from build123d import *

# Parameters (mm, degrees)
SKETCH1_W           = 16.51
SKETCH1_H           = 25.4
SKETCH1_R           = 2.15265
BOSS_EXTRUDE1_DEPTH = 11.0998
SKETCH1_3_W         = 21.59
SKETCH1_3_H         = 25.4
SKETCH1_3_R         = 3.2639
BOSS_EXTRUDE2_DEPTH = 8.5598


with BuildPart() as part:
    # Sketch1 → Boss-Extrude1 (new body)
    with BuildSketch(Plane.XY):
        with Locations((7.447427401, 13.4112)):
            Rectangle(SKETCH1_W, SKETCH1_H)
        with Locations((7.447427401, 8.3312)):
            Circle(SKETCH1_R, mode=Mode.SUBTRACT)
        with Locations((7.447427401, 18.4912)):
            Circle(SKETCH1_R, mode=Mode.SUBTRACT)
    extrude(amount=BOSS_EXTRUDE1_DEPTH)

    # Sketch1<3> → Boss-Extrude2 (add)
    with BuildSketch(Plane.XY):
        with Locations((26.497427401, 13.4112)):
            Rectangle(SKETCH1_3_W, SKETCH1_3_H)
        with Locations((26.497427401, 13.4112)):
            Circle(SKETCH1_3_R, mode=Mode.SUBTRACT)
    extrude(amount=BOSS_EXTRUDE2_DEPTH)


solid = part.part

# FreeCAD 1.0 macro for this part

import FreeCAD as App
import Part
import Sketcher
from FreeCAD import Vector
Q = App.Units.Quantity

doc = App.newDocument("Part")
body = doc.addObject("PartDesign::Body", "Body")

sketch1 = doc.addObject("Sketcher::SketchObject", "Sketch")
body.addObject(sketch1)
sketch1.AttachmentSupport = (doc.XY_Plane, [""])
sketch1.MapMode = "FlatFace"
sketch1.addGeometry(Part.LineSegment(Vector(-0.8, 26.1, 0), Vector(-0.8, 0.7, 0)), False)
sketch1.addGeometry(Part.LineSegment(Vector(-0.8, 0.7, 0), Vector(15.7, 0.7, 0)), False)
sketch1.addGeometry(Part.LineSegment(Vector(15.7, 0.7, 0), Vector(15.7, 26.1, 0)), False)
sketch1.addGeometry(Part.LineSegment(Vector(15.7, 26.1, 0), Vector(-0.8, 26.1, 0)), False)
sketch1.addGeometry(Part.Circle(Vector(7.4, 8.3, 0), Vector(0, 0, 1), 2.2), False)
sketch1.addGeometry(Part.Circle(Vector(7.4, 18.5, 0), Vector(0, 0, 1), 2.2), False)
sketch1.addConstraint(Sketcher.Constraint("Coincident", 0, 2, 1, 1))
sketch1.addConstraint(Sketcher.Constraint("Coincident", 1, 2, 2, 1))
sketch1.addConstraint(Sketcher.Constraint("Coincident", 2, 2, 3, 1))
sketch1.addConstraint(Sketcher.Constraint("Coincident", 3, 2, 0, 1))
sketch1.addConstraint(Sketcher.Constraint("Vertical", 0))
sketch1.addConstraint(Sketcher.Constraint("Horizontal", 1))
sketch1.addConstraint(Sketcher.Constraint("Vertical", 2))
sketch1.addConstraint(Sketcher.Constraint("Horizontal", 3))
sketch1.addConstraint(Sketcher.Constraint("Equal", 4, 5))
sketch1.addConstraint(Sketcher.Constraint("Vertical", 4, 3, 5, 3))
sketch1.addConstraint(Sketcher.Constraint("DistanceY", 0, 2, 0, 1, Q("1 in")))
sketch1.addConstraint(Sketcher.Constraint("Diameter", 4, Q("0.1695 in")))
sketch1.addConstraint(Sketcher.Constraint("DistanceX", 1, 1, 1, 2, Q("0.65 in")))
sketch1.addConstraint(Sketcher.Constraint("DistanceY", 4, 3, 5, 3, Q("0.4 in")))
sketch1.addConstraint(Sketcher.Constraint("DistanceY", 0, 2, 4, 3, Q("0.3 in")))
sketch1.addConstraint(Sketcher.Constraint("DistanceY", -1, 1, 4, 3, Q("0.328 in")))
sketch1.addConstraint(Sketcher.Constraint("DistanceX", 0, 2, 4, 3, Q("0.325 in")))
sketch1.addConstraint(Sketcher.Constraint("DistanceX", -1, 1, 4, 3, Q("7.447427 mm")))
pad1 = doc.addObject("PartDesign::Pad", "Pad")
body.addObject(pad1)
pad1.Profile = sketch1
pad1.Length = Q("0.437 in")

sketch2 = doc.addObject("Sketcher::SketchObject", "Sketch001")
body.addObject(sketch2)
sketch2.AttachmentSupport = (doc.XY_Plane, [""])
sketch2.MapMode = "FlatFace"
sketch2.addGeometry(Part.LineSegment(Vector(15.7, 26.1, 0), Vector(15.7, 0.7, 0)), False)
sketch2.addGeometry(Part.LineSegment(Vector(15.7, 0.7, 0), Vector(37.3, 0.7, 0)), False)
sketch2.addGeometry(Part.LineSegment(Vector(37.3, 0.7, 0), Vector(37.3, 26.1, 0)), False)
sketch2.addGeometry(Part.LineSegment(Vector(37.3, 26.1, 0), Vector(15.7, 26.1, 0)), False)
sketch2.addGeometry(Part.Circle(Vector(26.5, 13.4, 0), Vector(0, 0, 1), 3.3), False)
sketch2.addConstraint(Sketcher.Constraint("Coincident", 0, 2, 1, 1))
sketch2.addConstraint(Sketcher.Constraint("Coincident", 1, 2, 2, 1))
sketch2.addConstraint(Sketcher.Constraint("Coincident", 2, 2, 3, 1))
sketch2.addConstraint(Sketcher.Constraint("Coincident", 3, 2, 0, 1))
sketch2.addConstraint(Sketcher.Constraint("Vertical", 0))
sketch2.addConstraint(Sketcher.Constraint("Horizontal", 1))
sketch2.addConstraint(Sketcher.Constraint("Vertical", 2))
sketch2.addConstraint(Sketcher.Constraint("Horizontal", 3))
sketch2.addConstraint(Sketcher.Constraint("DistanceY", 0, 2, 0, 1, Q("1 in")))
sketch2.addConstraint(Sketcher.Constraint("Diameter", 4, Q("0.257 in")))
sketch2.addConstraint(Sketcher.Constraint("DistanceX", 1, 1, 1, 2, Q("0.85 in")))
sketch2.addConstraint(Sketcher.Constraint("DistanceY", 0, 2, 4, 3, Q("0.5 in")))
sketch2.addConstraint(Sketcher.Constraint("DistanceY", -1, 1, 4, 3, Q("0.528 in")))
sketch2.addConstraint(Sketcher.Constraint("DistanceX", 0, 2, 4, 3, Q("0.425 in")))
sketch2.addConstraint(Sketcher.Constraint("DistanceX", -1, 1, 4, 3, Q("26.497427 mm")))
pad2 = doc.addObject("PartDesign::Pad", "Pad001")
body.addObject(pad2)
pad2.Profile = sketch2
pad2.Length = Q("0.337 in")

doc.recompute()
